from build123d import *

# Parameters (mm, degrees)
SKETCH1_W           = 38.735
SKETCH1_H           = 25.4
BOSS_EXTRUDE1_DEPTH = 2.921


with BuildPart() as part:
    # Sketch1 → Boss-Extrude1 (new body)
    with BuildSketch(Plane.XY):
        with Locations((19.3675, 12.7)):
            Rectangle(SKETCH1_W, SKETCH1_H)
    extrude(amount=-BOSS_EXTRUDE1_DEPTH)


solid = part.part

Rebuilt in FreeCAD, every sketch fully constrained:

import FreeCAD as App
import Part
import Sketcher
from FreeCAD import Vector
Q = App.Units.Quantity

doc = App.newDocument("Part")
body = doc.addObject("PartDesign::Body", "Body")

sketch1 = body.newObject("Sketcher::SketchObject", "Sketch")
sketch1.AttachmentSupport = (doc.getObject("XY_Plane"), [""])
sketch1.MapMode = "FlatFace"
sketch1.addGeometry(Part.LineSegment(Vector(0, 25, 0), Vector(0, 0, 0)), False)
sketch1.addGeometry(Part.LineSegment(Vector(0, 0, 0), Vector(39, 0, 0)), False)
sketch1.addGeometry(Part.LineSegment(Vector(39, 0, 0), Vector(39, 25, 0)), False)
sketch1.addGeometry(Part.LineSegment(Vector(39, 25, 0), Vector(0, 25, 0)), False)
sketch1.addConstraint(Sketcher.Constraint("Coincident", 0, 2, 1, 1))
sketch1.addConstraint(Sketcher.Constraint("Coincident", 1, 2, 2, 1))
sketch1.addConstraint(Sketcher.Constraint("Coincident", 2, 2, 3, 1))
sketch1.addConstraint(Sketcher.Constraint("Coincident", 3, 2, 0, 1))
sketch1.addConstraint(Sketcher.Constraint("Vertical", 0))
sketch1.addConstraint(Sketcher.Constraint("Horizontal", 1))
sketch1.addConstraint(Sketcher.Constraint("Vertical", 2))
sketch1.addConstraint(Sketcher.Constraint("Horizontal", 3))
sketch1.addConstraint(Sketcher.Constraint("Coincident", 0, 2, -1, 1))
sketch1.addConstraint(Sketcher.Constraint("DistanceY", 0, 2, 0, 1, Q("1 in")))
sketch1.addConstraint(Sketcher.Constraint("DistanceX", 1, 1, 1, 2, Q("1.525 in")))
pad1 = body.newObject("PartDesign::Pad", "Pad")
pad1.Profile = sketch1
pad1.Length = Q("0.115 in")
pad1.Reversed = True

doc.recompute()
